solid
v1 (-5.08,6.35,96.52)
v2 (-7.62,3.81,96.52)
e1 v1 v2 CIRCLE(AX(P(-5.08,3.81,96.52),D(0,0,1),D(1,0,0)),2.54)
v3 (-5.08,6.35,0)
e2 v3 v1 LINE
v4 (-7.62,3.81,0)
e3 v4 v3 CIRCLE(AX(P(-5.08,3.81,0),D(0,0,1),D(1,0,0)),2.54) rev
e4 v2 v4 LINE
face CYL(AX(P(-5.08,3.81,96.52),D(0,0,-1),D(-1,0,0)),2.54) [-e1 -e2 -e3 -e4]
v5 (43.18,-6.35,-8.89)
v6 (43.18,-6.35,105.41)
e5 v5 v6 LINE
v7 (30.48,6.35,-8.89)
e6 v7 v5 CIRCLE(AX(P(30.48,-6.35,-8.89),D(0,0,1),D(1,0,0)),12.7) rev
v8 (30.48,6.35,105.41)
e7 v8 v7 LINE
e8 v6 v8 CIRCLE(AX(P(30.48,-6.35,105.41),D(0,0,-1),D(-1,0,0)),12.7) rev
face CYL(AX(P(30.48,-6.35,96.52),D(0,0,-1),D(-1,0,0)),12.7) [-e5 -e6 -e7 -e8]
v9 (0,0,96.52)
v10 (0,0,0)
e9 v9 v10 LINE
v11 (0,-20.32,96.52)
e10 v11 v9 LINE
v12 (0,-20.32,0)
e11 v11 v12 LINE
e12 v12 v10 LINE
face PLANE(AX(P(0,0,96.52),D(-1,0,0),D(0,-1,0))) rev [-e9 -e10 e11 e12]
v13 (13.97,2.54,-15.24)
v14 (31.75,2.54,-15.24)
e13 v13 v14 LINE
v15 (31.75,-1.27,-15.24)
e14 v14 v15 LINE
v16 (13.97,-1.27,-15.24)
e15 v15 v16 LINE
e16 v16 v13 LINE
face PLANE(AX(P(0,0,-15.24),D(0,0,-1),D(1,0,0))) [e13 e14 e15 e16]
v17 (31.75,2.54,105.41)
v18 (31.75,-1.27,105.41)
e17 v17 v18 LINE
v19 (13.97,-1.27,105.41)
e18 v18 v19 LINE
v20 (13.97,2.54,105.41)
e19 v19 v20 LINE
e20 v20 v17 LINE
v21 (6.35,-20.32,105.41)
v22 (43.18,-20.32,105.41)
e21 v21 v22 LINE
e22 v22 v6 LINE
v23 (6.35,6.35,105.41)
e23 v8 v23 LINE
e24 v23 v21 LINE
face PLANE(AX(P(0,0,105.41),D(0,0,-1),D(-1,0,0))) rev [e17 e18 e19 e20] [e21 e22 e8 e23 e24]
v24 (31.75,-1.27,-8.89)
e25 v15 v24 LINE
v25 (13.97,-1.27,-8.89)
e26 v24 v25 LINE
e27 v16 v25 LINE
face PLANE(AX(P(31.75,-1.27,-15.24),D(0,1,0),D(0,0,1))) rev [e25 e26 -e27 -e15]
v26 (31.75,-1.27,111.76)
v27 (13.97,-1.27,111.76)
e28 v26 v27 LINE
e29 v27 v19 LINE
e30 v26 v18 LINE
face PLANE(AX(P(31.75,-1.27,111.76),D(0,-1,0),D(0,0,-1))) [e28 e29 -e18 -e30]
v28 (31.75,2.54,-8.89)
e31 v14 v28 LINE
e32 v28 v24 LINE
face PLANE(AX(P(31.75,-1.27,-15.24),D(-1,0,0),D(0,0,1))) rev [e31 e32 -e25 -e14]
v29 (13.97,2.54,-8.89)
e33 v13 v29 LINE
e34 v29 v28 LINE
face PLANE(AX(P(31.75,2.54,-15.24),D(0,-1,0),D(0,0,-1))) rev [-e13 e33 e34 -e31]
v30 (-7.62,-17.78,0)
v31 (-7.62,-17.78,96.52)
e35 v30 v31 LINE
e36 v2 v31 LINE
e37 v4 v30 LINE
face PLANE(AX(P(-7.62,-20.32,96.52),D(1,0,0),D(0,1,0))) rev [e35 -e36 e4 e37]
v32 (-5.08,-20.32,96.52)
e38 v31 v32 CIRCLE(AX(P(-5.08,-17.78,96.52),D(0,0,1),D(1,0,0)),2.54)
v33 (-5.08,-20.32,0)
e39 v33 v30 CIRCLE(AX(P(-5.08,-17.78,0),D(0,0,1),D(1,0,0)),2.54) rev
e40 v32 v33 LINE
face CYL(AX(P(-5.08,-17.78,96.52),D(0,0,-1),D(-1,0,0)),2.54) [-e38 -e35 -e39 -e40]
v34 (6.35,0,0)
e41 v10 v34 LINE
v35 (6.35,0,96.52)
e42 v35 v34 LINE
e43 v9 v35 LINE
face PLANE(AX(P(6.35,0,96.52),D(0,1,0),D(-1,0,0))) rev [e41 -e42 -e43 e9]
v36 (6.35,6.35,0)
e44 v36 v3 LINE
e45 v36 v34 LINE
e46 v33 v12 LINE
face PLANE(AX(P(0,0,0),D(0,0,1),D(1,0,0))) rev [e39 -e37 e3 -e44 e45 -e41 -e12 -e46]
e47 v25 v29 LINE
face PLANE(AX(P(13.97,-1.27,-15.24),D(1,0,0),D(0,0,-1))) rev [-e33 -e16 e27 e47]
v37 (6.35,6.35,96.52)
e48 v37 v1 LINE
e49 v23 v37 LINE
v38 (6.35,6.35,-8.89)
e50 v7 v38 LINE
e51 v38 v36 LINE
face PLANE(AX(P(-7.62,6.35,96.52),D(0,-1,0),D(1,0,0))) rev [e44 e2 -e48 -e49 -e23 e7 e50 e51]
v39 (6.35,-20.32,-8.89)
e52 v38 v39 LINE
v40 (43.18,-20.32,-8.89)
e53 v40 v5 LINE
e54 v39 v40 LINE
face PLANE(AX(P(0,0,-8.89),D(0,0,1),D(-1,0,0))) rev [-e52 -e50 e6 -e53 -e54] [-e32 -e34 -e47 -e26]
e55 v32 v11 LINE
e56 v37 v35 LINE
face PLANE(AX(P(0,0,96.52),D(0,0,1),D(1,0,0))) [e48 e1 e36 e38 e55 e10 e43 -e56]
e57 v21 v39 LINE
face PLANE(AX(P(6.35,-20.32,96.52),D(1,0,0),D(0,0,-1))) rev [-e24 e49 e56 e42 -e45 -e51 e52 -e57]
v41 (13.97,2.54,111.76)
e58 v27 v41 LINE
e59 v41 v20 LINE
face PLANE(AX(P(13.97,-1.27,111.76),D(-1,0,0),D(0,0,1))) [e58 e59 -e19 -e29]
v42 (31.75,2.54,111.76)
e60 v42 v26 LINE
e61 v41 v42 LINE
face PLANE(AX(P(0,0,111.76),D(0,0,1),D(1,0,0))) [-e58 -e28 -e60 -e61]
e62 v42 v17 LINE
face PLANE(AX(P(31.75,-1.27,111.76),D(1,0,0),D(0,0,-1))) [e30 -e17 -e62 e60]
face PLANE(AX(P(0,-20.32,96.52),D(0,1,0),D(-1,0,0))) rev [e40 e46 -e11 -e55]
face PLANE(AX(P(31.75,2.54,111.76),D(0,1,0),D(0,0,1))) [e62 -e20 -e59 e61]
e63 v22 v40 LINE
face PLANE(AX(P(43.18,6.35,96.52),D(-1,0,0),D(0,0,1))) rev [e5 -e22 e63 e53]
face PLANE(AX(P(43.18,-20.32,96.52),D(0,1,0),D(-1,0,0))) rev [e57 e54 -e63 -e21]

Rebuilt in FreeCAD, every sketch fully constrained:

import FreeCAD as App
import Part
import Sketcher
Q = App.Units.Quantity


def edges_at(feature, points):
    """Names of the edges that pass closest to the given points."""
    edges = feature.Shape.Edges
    near = lambda p: min(range(len(edges)), key=lambda i: edges[i].distToShape(Part.Vertex(*p))[0])
    return sorted({f"Edge{near(p) + 1}" for p in points})

doc = App.newDocument("Part")
body = doc.addObject("PartDesign::Body", "Body")

# Sketch on XY plane
sketch1 = body.newObject("Sketcher::SketchObject", "Sketch")
sketch1.AttachmentSupport = (doc.getObject("XY_Plane"), [""])
sketch1.MapMode = "FlatFace"
sketch1.addGeometry([
    Part.LineSegment(App.Vector(0, -20, 0), App.Vector(0, 0, 0)),  # 0
    Part.LineSegment(App.Vector(0, 0, 0), App.Vector(6, 0, 0)),  # 1
    Part.LineSegment(App.Vector(6, 0, 0), App.Vector(6, -20, 0)),  # 2
    Part.LineSegment(App.Vector(6, -20, 0), App.Vector(43, -20, 0)),  # 3
    Part.LineSegment(App.Vector(43, -20, 0), App.Vector(43, 6, 0)),  # 4
    Part.LineSegment(App.Vector(43, 6, 0), App.Vector(-8, 6, 0)),  # 5
    Part.LineSegment(App.Vector(-8, 6, 0), App.Vector(-8, -20, 0)),  # 6
    Part.LineSegment(App.Vector(-8, -20, 0), App.Vector(0, -20, 0)),  # 7
], False)
sketch1.addConstraint([
    Sketcher.Constraint("Coincident", 0, 2, 1, 1),
    Sketcher.Constraint("Coincident", 1, 2, 2, 1),
    Sketcher.Constraint("Coincident", 2, 2, 3, 1),
    Sketcher.Constraint("Coincident", 3, 2, 4, 1),
    Sketcher.Constraint("Coincident", 4, 2, 5, 1),
    Sketcher.Constraint("Coincident", 5, 2, 6, 1),
    Sketcher.Constraint("Coincident", 6, 2, 7, 1),
    Sketcher.Constraint("Coincident", 7, 2, 0, 1),
    Sketcher.Constraint("Vertical", 0),
    Sketcher.Constraint("Horizontal", 1),
    Sketcher.Constraint("Vertical", 2),
    Sketcher.Constraint("Horizontal", 3),
    Sketcher.Constraint("Vertical", 4),
    Sketcher.Constraint("Horizontal", 5),
    Sketcher.Constraint("Vertical", 6),
    Sketcher.Constraint("Horizontal", 7),
    Sketcher.Constraint("Coincident", 0, 2, -1, 1),
    Sketcher.Constraint("Horizontal", 3, 2, 6, 2),
    Sketcher.Constraint("DistanceX", 5, 2, 5, 1, Q("2 in")),
    Sketcher.Constraint("DistanceX", 7, 1, 7, 2, Q("0.3 in")),
    Sketcher.Constraint("DistanceY", 0, 1, 0, 2, Q("0.8 in")),
    Sketcher.Constraint("DistanceX", 1, 1, 1, 2, Q("0.25 in")),
    Sketcher.Constraint("DistanceY", 4, 1, 4, 2, Q("1.05 in")),
])
pad1 = body.newObject("PartDesign::Pad", "Pad")
pad1.Profile = sketch1
pad1.Length = Q("3.8 in")

# Sketch on XY plane
sketch2 = body.newObject("Sketcher::SketchObject", "Sketch001")
sketch2.AttachmentSupport = (doc.getObject("XY_Plane"), [""])
sketch2.MapMode = "FlatFace"
sketch2.AttachmentOffset = App.Placement(App.Vector(0, 0, 3.8 * 25.4), App.Rotation())
sketch2.addGeometry([
    Part.LineSegment(App.Vector(6, 6, 0), App.Vector(6, -20, 0)),
    Part.LineSegment(App.Vector(6, -20, 0), App.Vector(43, -20, 0)),
    Part.LineSegment(App.Vector(43, -20, 0), App.Vector(43, 6, 0)),
    Part.LineSegment(App.Vector(43, 6, 0), App.Vector(6, 6, 0)),
], False)
sketch2.addConstraint([
    Sketcher.Constraint("Coincident", 0, 2, 1, 1),
    Sketcher.Constraint("Coincident", 1, 2, 2, 1),
    Sketcher.Constraint("Coincident", 2, 2, 3, 1),
    Sketcher.Constraint("Coincident", 3, 2, 0, 1),
    Sketcher.Constraint("Vertical", 0),
    Sketcher.Constraint("Horizontal", 1),
    Sketcher.Constraint("Vertical", 2),
    Sketcher.Constraint("Horizontal", 3),
    Sketcher.Constraint("DistanceX", 1, 1, 1, 2, Q("1.45 in")),
    Sketcher.Constraint("DistanceY", 0, 2, 0, 1, Q("1.05 in")),
    Sketcher.Constraint("DistanceY", 0, 2, -1, 1, Q("0.8 in")),
    Sketcher.Constraint("DistanceX", -1, 1, 1, 2, Q("1.7 in")),
])
pad2 = body.newObject("PartDesign::Pad", "Pad001")
pad2.Profile = sketch2
pad2.Length = Q("0.35 in")

# Sketch on XY plane
sketch3 = body.newObject("Sketcher::SketchObject", "Sketch002")
sketch3.AttachmentSupport = (doc.getObject("XY_Plane"), [""])
sketch3.MapMode = "FlatFace"
sketch3.AttachmentOffset = App.Placement(App.Vector(0, 0, 4.15 * 25.4), App.Rotation())
sketch3.addGeometry([
    Part.LineSegment(App.Vector(31.8, 2.5, 0), App.Vector(31.8, -1.3, 0)),
    Part.LineSegment(App.Vector(31.8, -1.3, 0), App.Vector(14, -1.3, 0)),
    Part.LineSegment(App.Vector(14, -1.3, 0), App.Vector(14, 2.5, 0)),
    Part.LineSegment(App.Vector(14, 2.5, 0), App.Vector(31.8, 2.5, 0)),
], False)
sketch3.addConstraint([
    Sketcher.Constraint("Coincident", 0, 2, 1, 1),
    Sketcher.Constraint("Coincident", 1, 2, 2, 1),
    Sketcher.Constraint("Coincident", 2, 2, 3, 1),
    Sketcher.Constraint("Coincident", 3, 2, 0, 1),
    Sketcher.Constraint("Vertical", 0),
    Sketcher.Constraint("Horizontal", 1),
    Sketcher.Constraint("Vertical", 2),
    Sketcher.Constraint("Horizontal", 3),
    Sketcher.Constraint("DistanceX", 1, 2, 1, 1, Q("0.7 in")),
    Sketcher.Constraint("DistanceY", 0, 2, 0, 1, Q("0.15 in")),
    Sketcher.Constraint("DistanceY", -1, 1, 2, 2, Q("0.1 in")),
    Sketcher.Constraint("DistanceX", -1, 1, 0, 2, Q("1.25 in")),
])
pad3 = body.newObject("PartDesign::Pad", "Pad002")
pad3.Profile = sketch3
pad3.Length = Q("0.25 in")
doc.recompute()

datumplane = body.newObject("PartDesign::Plane", "DatumPlane")
datumplane.AttachmentSupport = (doc.getObject("XY_Plane"), [""])
datumplane.MapMode = "FlatFace"
datumplane.AttachmentOffset = App.Placement(App.Vector(0, 0, 1.9 * 25.4), App.Rotation())
mirrored = body.newObject("PartDesign::Mirrored", "Mirrored")
mirrored.Originals = [pad2, pad3]
mirrored.MirrorPlane = (datumplane, [""])
body.Tip = mirrored
doc.recompute()

fillet = body.newObject("PartDesign::Fillet", "Fillet")
fillet.Base = (mirrored, edges_at(mirrored, [(43.18, 6.35, 48.26)]))
fillet.Radius = Q("0.5 in")
doc.recompute()

fillet2 = body.newObject("PartDesign::Fillet", "Fillet001")
fillet2.Base = (fillet, edges_at(fillet, [(-7.62, -20.32, 48.26), (-7.62, 6.35, 48.26)]))
fillet2.Radius = Q("0.1 in")

doc.recompute()
